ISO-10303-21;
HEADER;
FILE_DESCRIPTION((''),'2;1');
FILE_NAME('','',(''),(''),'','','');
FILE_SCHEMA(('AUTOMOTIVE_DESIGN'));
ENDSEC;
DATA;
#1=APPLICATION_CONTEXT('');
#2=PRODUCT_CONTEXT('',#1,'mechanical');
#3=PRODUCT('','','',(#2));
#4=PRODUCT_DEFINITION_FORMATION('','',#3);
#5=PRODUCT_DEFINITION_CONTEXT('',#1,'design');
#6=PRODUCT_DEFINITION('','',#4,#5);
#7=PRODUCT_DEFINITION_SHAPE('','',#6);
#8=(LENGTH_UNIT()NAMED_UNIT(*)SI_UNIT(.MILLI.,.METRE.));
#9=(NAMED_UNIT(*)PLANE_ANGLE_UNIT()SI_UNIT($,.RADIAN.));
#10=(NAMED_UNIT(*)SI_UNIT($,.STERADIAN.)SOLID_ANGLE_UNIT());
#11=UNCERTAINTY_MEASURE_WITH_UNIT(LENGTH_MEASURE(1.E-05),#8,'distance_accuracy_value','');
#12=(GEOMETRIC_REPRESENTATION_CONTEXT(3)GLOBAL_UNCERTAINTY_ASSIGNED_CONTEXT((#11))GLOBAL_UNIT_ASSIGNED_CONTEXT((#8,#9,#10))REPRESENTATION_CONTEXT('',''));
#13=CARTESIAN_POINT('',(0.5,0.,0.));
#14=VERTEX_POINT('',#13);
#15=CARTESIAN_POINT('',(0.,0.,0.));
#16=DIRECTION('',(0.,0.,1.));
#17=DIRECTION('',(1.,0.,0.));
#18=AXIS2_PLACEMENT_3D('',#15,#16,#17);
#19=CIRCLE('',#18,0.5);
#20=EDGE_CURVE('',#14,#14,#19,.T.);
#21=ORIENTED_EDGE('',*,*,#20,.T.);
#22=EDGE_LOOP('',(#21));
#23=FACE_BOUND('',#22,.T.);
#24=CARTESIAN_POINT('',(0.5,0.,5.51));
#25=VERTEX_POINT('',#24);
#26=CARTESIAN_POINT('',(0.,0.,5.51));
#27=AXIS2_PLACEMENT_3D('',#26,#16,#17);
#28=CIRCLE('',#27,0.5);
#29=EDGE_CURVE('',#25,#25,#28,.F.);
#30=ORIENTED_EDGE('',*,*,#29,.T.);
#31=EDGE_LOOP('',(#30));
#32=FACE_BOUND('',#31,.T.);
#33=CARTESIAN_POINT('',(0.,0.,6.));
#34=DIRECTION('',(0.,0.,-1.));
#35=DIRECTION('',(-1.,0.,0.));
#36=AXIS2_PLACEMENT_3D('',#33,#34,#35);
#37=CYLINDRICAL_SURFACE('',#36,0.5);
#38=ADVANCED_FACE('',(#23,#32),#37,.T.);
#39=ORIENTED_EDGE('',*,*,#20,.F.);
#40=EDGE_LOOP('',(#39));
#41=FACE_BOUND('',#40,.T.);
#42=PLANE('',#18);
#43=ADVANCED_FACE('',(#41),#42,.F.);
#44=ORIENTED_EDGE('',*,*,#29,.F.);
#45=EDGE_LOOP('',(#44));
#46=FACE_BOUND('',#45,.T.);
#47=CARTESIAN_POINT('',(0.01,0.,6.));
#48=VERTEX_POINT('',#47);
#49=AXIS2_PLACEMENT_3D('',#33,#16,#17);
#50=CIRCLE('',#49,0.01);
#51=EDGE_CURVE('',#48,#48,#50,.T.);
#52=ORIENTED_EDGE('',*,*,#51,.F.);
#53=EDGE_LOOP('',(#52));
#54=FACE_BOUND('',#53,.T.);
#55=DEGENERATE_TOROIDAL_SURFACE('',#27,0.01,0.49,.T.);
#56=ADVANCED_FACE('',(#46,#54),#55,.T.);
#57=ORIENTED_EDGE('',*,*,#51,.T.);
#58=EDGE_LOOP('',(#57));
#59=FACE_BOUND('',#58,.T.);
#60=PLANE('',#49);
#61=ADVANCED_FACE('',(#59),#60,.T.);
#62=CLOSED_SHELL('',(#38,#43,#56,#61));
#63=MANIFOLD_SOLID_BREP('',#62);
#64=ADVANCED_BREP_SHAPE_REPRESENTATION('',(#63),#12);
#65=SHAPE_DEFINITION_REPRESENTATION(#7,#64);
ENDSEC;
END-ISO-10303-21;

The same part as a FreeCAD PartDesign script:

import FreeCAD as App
import Part
import Sketcher
Q = App.Units.Quantity


def edges_at(feature, points):
    """Names of the edges that pass closest to the given points."""
    edges = feature.Shape.Edges
    near = lambda p: min(range(len(edges)), key=lambda i: edges[i].distToShape(Part.Vertex(*p))[0])
    return sorted({f"Edge{near(p) + 1}" for p in points})

doc = App.newDocument("Part")
params = doc.addObject("Spreadsheet::Sheet", "Params")
for row, (alias, value) in enumerate([
    ("sketch1_diameter", "1 mm"),
    ("pad1_length", "6 mm"),
    ("fillet_radius", "0.49 mm"),
], start=1):
    params.set(f"A{row}", alias)
    params.set(f"B{row}", "=" + value)
    params.setAlias(f"B{row}", alias)

body = doc.addObject("PartDesign::Body", "Body")

# Sketch on XY plane
sketch1 = body.newObject("Sketcher::SketchObject", "Sketch")
sketch1.AttachmentSupport = (doc.getObject("XY_Plane"), [""])
sketch1.MapMode = "FlatFace"
sketch1.addGeometry(Part.Circle(App.Vector(0, 0, 0), App.Vector(0, 0, 1), 0.5), False)
sketch1.addConstraint(Sketcher.Constraint("Coincident", 0, 3, -1, 1))
sketch1.addConstraint(Sketcher.Constraint("Diameter", 0, Q("1 mm")))
sketch1.setExpression("Constraints[1]", "Params.sketch1_diameter")
pad1 = body.newObject("PartDesign::Pad", "Pad")
pad1.Profile = sketch1
pad1.setExpression("Length", "Params.pad1_length")
doc.recompute()

fillet = body.newObject("PartDesign::Fillet", "Fillet")
fillet.Base = (pad1, edges_at(pad1, [(-0.5, 0, 6)]))
fillet.setExpression("Radius", "Params.fillet_radius")

doc.recompute()
